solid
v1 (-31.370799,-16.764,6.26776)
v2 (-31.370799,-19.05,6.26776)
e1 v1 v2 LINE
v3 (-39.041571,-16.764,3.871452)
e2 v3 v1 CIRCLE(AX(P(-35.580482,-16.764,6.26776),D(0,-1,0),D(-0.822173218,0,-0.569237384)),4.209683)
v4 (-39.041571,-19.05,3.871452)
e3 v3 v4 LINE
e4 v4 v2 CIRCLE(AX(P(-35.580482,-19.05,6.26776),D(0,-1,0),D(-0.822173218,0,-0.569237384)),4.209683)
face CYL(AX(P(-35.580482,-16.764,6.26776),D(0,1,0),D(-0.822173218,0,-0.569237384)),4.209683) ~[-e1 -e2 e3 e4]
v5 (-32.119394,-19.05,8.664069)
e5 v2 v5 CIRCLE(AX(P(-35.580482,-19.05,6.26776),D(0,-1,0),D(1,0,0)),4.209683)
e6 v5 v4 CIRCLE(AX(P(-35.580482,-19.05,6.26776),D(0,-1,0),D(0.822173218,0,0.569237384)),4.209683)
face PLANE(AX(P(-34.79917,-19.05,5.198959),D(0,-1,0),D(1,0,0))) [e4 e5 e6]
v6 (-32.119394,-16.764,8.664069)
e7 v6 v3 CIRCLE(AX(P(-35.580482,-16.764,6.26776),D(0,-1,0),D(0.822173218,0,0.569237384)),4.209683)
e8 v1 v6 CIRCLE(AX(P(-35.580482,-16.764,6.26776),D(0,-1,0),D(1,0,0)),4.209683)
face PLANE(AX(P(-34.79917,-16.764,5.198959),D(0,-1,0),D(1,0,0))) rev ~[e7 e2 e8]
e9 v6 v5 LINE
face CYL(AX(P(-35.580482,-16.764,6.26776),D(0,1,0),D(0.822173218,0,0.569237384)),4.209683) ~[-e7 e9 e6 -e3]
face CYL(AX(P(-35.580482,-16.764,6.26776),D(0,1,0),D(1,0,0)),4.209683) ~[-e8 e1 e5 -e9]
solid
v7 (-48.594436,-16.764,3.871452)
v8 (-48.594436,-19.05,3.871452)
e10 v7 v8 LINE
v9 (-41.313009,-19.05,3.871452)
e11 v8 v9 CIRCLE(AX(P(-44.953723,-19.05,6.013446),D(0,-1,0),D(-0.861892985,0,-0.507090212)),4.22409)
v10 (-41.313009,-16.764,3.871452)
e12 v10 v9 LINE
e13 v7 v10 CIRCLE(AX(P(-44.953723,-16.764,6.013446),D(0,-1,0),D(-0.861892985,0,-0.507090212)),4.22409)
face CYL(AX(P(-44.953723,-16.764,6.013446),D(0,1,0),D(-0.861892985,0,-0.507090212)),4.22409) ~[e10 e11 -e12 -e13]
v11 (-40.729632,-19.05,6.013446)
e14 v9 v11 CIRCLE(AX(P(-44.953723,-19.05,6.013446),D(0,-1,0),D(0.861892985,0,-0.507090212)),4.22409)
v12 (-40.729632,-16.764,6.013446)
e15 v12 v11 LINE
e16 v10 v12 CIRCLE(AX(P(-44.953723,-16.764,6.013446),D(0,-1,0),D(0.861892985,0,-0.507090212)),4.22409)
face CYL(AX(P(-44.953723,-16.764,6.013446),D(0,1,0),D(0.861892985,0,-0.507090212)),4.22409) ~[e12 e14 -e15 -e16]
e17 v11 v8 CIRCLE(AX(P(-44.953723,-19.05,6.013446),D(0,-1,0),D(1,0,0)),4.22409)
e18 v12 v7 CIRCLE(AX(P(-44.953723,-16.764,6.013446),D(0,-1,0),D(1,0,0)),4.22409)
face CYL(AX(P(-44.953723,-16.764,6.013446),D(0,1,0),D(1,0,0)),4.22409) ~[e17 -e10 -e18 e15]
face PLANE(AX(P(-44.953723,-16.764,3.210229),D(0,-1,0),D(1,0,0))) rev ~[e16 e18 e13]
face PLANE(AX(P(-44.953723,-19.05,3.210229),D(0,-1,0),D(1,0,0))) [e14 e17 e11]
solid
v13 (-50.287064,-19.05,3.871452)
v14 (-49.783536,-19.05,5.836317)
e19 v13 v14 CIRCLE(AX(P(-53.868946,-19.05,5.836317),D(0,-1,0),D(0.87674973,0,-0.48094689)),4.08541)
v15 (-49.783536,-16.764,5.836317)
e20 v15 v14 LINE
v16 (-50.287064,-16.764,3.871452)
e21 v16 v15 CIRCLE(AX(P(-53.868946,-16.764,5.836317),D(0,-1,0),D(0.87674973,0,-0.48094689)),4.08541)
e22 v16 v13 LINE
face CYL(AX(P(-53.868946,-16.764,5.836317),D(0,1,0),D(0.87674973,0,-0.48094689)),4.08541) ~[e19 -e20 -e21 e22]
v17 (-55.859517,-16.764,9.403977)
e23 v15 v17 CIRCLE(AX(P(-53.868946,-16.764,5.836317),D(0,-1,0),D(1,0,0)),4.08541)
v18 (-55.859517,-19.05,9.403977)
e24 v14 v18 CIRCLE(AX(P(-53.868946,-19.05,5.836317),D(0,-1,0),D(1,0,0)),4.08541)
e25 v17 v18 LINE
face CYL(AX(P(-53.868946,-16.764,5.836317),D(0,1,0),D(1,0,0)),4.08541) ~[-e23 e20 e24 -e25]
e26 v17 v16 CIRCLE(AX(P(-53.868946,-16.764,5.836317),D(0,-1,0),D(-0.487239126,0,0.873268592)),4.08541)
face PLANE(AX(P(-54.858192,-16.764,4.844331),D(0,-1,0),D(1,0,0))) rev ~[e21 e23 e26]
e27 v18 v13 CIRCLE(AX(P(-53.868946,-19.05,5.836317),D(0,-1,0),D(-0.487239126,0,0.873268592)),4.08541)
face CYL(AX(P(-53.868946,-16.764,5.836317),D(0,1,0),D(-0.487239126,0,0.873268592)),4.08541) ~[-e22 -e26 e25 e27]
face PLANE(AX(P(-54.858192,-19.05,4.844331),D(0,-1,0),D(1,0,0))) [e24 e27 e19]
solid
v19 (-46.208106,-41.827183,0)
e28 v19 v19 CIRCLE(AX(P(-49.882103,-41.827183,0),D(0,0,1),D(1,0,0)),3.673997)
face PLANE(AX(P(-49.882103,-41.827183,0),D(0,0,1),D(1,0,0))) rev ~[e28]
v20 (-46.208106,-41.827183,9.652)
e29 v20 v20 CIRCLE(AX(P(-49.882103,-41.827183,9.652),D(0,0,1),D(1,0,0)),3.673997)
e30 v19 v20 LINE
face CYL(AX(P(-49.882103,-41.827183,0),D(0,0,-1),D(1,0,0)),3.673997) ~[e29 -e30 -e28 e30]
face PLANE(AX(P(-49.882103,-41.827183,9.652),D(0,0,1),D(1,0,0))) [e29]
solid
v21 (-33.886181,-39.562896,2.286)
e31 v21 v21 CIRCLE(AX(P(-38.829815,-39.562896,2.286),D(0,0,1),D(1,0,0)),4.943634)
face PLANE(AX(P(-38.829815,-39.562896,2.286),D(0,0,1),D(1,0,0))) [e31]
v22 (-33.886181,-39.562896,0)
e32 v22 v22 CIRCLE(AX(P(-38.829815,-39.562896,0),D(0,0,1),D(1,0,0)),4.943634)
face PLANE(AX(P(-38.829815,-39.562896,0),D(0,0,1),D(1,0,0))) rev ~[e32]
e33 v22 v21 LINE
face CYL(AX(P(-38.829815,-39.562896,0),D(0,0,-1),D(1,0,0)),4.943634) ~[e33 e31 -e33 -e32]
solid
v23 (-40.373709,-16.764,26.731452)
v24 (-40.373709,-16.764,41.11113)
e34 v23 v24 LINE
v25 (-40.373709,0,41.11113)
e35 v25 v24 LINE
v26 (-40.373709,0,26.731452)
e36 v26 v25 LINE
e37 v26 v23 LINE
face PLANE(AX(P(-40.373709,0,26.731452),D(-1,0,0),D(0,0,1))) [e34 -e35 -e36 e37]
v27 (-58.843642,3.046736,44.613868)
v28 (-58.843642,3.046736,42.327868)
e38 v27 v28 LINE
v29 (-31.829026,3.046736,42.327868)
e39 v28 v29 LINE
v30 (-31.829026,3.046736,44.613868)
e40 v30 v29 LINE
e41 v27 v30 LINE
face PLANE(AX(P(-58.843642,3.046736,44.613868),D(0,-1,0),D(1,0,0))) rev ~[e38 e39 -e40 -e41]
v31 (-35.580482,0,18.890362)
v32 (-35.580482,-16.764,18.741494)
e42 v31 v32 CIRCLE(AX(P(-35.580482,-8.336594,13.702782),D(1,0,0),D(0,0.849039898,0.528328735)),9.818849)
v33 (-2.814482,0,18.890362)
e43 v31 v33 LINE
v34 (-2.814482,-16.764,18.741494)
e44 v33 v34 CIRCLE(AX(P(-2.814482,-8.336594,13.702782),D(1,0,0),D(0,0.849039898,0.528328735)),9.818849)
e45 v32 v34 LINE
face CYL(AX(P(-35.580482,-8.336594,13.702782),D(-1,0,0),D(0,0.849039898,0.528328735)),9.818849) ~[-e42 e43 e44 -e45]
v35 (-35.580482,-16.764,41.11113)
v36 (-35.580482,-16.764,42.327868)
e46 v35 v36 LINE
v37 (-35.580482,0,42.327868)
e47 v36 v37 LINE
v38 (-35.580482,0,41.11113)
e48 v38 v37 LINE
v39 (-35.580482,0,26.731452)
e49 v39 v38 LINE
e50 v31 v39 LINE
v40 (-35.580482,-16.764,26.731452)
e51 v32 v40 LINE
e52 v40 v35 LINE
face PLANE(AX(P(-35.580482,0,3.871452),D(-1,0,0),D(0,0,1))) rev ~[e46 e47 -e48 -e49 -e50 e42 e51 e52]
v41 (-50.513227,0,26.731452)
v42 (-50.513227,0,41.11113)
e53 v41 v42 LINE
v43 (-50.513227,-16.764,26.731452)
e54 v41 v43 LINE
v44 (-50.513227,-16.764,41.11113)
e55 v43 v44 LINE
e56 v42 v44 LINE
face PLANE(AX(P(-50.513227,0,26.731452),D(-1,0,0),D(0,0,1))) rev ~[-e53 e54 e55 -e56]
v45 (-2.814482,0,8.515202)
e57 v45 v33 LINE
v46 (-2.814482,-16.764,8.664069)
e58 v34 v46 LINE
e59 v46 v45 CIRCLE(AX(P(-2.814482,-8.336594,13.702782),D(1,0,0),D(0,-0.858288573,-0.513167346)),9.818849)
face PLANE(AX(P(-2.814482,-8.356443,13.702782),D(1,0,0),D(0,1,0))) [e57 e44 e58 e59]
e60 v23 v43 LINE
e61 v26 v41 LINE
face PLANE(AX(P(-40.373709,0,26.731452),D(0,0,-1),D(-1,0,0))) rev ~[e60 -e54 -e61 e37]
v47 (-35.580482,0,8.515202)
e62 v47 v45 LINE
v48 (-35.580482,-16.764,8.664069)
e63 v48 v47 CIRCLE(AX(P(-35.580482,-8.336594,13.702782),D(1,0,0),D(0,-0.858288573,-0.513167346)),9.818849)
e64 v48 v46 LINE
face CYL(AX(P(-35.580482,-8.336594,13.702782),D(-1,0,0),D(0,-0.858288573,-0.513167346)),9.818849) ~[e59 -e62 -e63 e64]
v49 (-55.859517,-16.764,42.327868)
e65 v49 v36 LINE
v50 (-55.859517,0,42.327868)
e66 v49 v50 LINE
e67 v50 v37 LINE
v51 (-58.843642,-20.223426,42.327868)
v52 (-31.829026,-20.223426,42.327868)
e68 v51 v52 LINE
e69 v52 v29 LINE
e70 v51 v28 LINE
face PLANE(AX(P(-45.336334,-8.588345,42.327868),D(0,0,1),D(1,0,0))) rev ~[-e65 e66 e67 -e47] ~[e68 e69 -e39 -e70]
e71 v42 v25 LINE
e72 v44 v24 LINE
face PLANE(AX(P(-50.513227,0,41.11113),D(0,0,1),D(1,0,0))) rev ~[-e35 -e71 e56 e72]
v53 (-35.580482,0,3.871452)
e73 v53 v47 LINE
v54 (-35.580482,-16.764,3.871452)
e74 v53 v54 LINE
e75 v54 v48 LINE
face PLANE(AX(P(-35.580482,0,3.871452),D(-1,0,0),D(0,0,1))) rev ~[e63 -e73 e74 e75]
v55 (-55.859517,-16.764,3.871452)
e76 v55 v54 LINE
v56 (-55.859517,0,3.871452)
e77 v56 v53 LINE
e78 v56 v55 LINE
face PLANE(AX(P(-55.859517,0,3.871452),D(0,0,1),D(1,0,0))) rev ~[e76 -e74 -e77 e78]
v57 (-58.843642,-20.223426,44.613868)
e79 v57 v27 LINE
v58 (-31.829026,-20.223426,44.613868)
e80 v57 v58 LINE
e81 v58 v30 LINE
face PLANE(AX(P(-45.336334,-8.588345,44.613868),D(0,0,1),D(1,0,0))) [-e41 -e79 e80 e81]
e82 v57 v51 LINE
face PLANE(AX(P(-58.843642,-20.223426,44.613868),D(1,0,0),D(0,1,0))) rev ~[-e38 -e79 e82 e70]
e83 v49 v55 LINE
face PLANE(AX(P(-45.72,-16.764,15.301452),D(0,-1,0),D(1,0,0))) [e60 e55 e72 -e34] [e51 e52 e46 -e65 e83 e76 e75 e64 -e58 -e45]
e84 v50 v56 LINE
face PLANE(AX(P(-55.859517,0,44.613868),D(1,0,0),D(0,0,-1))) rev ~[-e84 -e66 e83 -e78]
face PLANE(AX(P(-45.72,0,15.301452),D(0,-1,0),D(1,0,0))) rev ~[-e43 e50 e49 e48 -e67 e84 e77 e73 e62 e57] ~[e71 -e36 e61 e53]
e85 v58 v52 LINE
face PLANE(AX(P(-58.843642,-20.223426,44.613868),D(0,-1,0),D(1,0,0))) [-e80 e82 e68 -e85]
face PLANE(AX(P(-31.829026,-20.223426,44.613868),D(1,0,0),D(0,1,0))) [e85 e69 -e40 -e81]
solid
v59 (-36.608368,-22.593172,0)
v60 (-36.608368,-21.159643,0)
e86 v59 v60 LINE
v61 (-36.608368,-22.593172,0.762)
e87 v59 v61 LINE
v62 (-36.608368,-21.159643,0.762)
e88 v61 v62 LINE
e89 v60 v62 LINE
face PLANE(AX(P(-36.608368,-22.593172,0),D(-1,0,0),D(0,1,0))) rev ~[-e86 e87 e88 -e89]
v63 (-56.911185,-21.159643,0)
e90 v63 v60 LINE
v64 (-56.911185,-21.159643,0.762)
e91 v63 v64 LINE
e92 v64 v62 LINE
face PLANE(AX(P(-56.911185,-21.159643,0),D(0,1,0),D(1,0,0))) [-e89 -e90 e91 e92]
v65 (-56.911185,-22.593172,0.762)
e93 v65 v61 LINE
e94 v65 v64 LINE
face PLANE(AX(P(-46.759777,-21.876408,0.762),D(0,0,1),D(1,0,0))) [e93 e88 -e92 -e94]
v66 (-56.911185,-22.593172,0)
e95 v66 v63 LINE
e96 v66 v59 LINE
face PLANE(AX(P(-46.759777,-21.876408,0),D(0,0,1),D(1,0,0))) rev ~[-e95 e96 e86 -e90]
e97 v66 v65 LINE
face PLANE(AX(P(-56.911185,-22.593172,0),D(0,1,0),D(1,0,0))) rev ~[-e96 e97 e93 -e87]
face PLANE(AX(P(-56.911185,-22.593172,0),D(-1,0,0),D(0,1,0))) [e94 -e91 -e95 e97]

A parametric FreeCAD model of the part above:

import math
import FreeCAD as App
import Part
import Sketcher
from FreeCAD import Vector
Q = App.Units.Quantity


def add_polygon(sketch, points):
    """Adds a closed chain of lines whose ends are joined by coincident constraints."""
    first, n = sketch.GeometryCount, len(points)
    for a, b in zip(points, points[1:] + points[:1]):
        sketch.addGeometry(Part.LineSegment(App.Vector(*a, 0), App.Vector(*b, 0)), False)
    for i in range(n):
        sketch.addConstraint(Sketcher.Constraint("Coincident", first + i, 2, first + (i + 1) % n, 1))

doc = App.newDocument("Part")
body = doc.addObject("PartDesign::Body", "Body")

sketch1 = body.newObject("Sketcher::SketchObject", "Sketch")
sketch1.AttachmentSupport = (doc.getObject("XZ_Plane"), [""])
sketch1.MapMode = "FlatFace"
add_polygon(sketch1, [(-55.859517, 3.871452), (-35.580482, 3.871452), (-35.580482, 26.731452), (-35.580482, 41.11113), (-35.580482, 44.613868), (-55.859517, 44.613868)])
add_polygon(sketch1, [(-40.373709, 41.11113), (-40.373709, 26.731452), (-50.513227, 26.731452), (-50.513227, 41.11113)])
sketch1.addConstraint([
    Sketcher.Constraint("Horizontal", 0),
    Sketcher.Constraint("Vertical", 1),
    Sketcher.Constraint("Vertical", 2),
    Sketcher.Constraint("Vertical", 3),
    Sketcher.Constraint("Horizontal", 4),
    Sketcher.Constraint("Vertical", 5),
    Sketcher.Constraint("Vertical", 6),
    Sketcher.Constraint("Horizontal", 7),
    Sketcher.Constraint("Vertical", 8),
    Sketcher.Constraint("Horizontal", 9),
    Sketcher.Constraint("Horizontal", 1, 2, 6, 2),
    Sketcher.Constraint("Horizontal", 2, 2, 8, 2),
    Sketcher.Constraint("DistanceY", 1, 1, 1, 2, Q("0.9 in")),
    Sketcher.Constraint("DistanceY", 2, 1, 2, 2, Q("14.379678 mm")),
    Sketcher.Constraint("DistanceX", 0, 1, 0, 2, Q("20.279035 mm")),
    Sketcher.Constraint("DistanceX", 7, 2, 7, 1, Q("10.139517 mm")),
    Sketcher.Constraint("DistanceY", 3, 1, 3, 2, Q("3.502738 mm")),
    Sketcher.Constraint("DistanceY", -1, 1, 0, 2, Q("3.871452 mm")),
    Sketcher.Constraint("DistanceX", 6, 2, -1, 1, Q("40.373709 mm")),
    Sketcher.Constraint("DistanceX", 4, 2, 6, 2, Q("15.485808 mm")),
])
pad1 = body.newObject("PartDesign::Pad", "Pad")
pad1.Profile = sketch1
pad1.Length = Q("0.66 in")

sketch2 = body.newObject("Sketcher::SketchObject", "Sketch001")
sketch2.AttachmentSupport = (doc.getObject("YZ_Plane"), [""])
sketch2.MapMode = "FlatFace"
sketch2.AttachmentOffset = App.Placement(Vector(0, 0, -35.580482), App.Rotation())
sketch2.addGeometry([
    Part.LineSegment(Vector(0, 8.515202, 0), Vector(0, 18.890362, 0)),
    Part.ArcOfCircle(Part.Circle(Vector(-8.336594, 13.702782, 0), Vector(0, 0, 1), 9.818849), math.radians(31.892604), math.radians(149.124964)),
    Part.LineSegment(Vector(-16.764, 18.741494, 0), Vector(-16.764, 8.664069, 0)),
    Part.ArcOfCircle(Part.Circle(Vector(-8.336594, 13.702782, 0), Vector(0, 0, 1), 9.818849), math.radians(-149.124964), math.radians(-31.892604)),
], False)
sketch2.addConstraint([
    Sketcher.Constraint("Coincident", 0, 2, 1, 1),
    Sketcher.Constraint("Coincident", 1, 2, 2, 1),
    Sketcher.Constraint("Coincident", 2, 2, 3, 1),
    Sketcher.Constraint("Coincident", 3, 2, 0, 1),
    Sketcher.Constraint("Vertical", 0),
    Sketcher.Constraint("Vertical", 2),
    Sketcher.Constraint("Coincident", 3, 3, 1, 3),
    Sketcher.Constraint("Equal", 1, 3),
    Sketcher.Constraint("PointOnObject", 0, 2, -2),
    Sketcher.Constraint("DistanceX", 1, 2, -1, 1, Q("0.66 in")),
    Sketcher.Constraint("Radius", 1, Q("9.818849 mm")),
    Sketcher.Constraint("DistanceY", 0, 1, 0, 2, Q("10.37516 mm")),
    Sketcher.Constraint("DistanceY", -1, 1, 3, 2, Q("8.515202 mm")),
])
pad2 = body.newObject("PartDesign::Pad", "Pad001")
pad2.Profile = sketch2
pad2.Length = Q("1.29 in")

sketch3 = body.newObject("Sketcher::SketchObject", "Sketch002")
sketch3.AttachmentSupport = (doc.getObject("XY_Plane"), [""])
sketch3.MapMode = "FlatFace"
sketch3.AttachmentOffset = App.Placement(Vector(0, 0, 44.613868), App.Rotation())
add_polygon(sketch3, [(-58.843642, 3.046736), (-58.843642, -20.223426), (-31.829026, -20.223426), (-31.829026, 3.046736)])
add_polygon(sketch3, [(-35.580482, -16.764), (-55.859517, -16.764), (-55.859517, 0), (-35.580482, 0)])
sketch3.addConstraint([
    Sketcher.Constraint("Vertical", 0),
    Sketcher.Constraint("Horizontal", 1),
    Sketcher.Constraint("Vertical", 2),
    Sketcher.Constraint("Horizontal", 3),
    Sketcher.Constraint("Horizontal", 4),
    Sketcher.Constraint("Vertical", 5),
    Sketcher.Constraint("Horizontal", 6),
    Sketcher.Constraint("Vertical", 7),
    Sketcher.Constraint("PointOnObject", 5, 2, -1),
    Sketcher.Constraint("DistanceY", 5, 1, 5, 2, Q("0.66 in")),
    Sketcher.Constraint("DistanceY", 0, 2, 0, 1, Q("23.270162 mm")),
    Sketcher.Constraint("DistanceX", 1, 1, 1, 2, Q("27.014617 mm")),
    Sketcher.Constraint("DistanceX", 4, 2, 4, 1, Q("20.279035 mm")),
    Sketcher.Constraint("DistanceX", 4, 2, 1, 2, Q("24.030492 mm")),
    Sketcher.Constraint("DistanceX", 0, 2, -1, 1, Q("58.843642 mm")),
    Sketcher.Constraint("DistanceY", 0, 2, -1, 1, Q("20.223426 mm")),
])
pad3 = body.newObject("PartDesign::Pad", "Pad002")
pad3.Profile = sketch3
pad3.Length = Q("0.09 in")
pad3.Reversed = True
body2 = doc.addObject("PartDesign::Body", "Body001")

sketch4 = body2.newObject("Sketcher::SketchObject", "Sketch003")
sketch4.AttachmentSupport = (doc.getObject("XZ_Plane001"), [""])
sketch4.MapMode = "FlatFace"
sketch4.AttachmentOffset = App.Placement(Vector(0, 0, 0.66 * 25.4), App.Rotation())
sketch4.addGeometry([
    Part.ArcOfCircle(Part.Circle(Vector(-53.868946, 5.836317, 0), Vector(0, 0, 1), 4.08541), math.radians(119.159278), math.radians(331.252737)),
    Part.ArcOfCircle(Part.Circle(Vector(-53.868946, 5.836317, 0), Vector(0, 0, 1), 4.08541), math.radians(-28.747263), math.radians(0)),
    Part.ArcOfCircle(Part.Circle(Vector(-53.868946, 5.836317, 0), Vector(0, 0, 1), 4.08541), math.radians(0), math.radians(119.159278)),
], False)
sketch4.addConstraint([
    Sketcher.Constraint("Tangent", 0, 2, 1, 1),
    Sketcher.Constraint("Tangent", 1, 2, 2, 1),
    Sketcher.Constraint("Tangent", 2, 2, 0, 1),
    Sketcher.Constraint("Horizontal", 2, 3, 1, 2),
    Sketcher.Constraint("Radius", 0, Q("4.08541 mm")),
    Sketcher.Constraint("DistanceY", -1, 1, 0, 2, Q("3.871452 mm")),
    Sketcher.Constraint("DistanceX", 2, 2, 1, 3, Q("1.990572 mm")),
    Sketcher.Constraint("DistanceX", 0, 3, -1, 1, Q("53.868946 mm")),
    Sketcher.Constraint("DistanceY", -1, 1, 0, 3, Q("5.836317 mm")),
])
pad4 = body2.newObject("PartDesign::Pad", "Pad003")
pad4.Profile = sketch4
pad4.Length = Q("0.09 in")
body3 = doc.addObject("PartDesign::Body", "Body002")

sketch5 = body3.newObject("Sketcher::SketchObject", "Sketch004")
sketch5.AttachmentSupport = (doc.getObject("XZ_Plane002"), [""])
sketch5.MapMode = "FlatFace"
sketch5.AttachmentOffset = App.Placement(Vector(0, 0, 0.66 * 25.4), App.Rotation())
sketch5.addGeometry([
    Part.ArcOfCircle(Part.Circle(Vector(-44.953723, 6.013446, 0), Vector(0, 0, 1), 4.22409), math.radians(-149.529796), math.radians(-30.470204)),
    Part.ArcOfCircle(Part.Circle(Vector(-44.953723, 6.013446, 0), Vector(0, 0, 1), 4.22409), math.radians(-30.470204), math.radians(0)),
    Part.ArcOfCircle(Part.Circle(Vector(-44.953723, 6.013446, 0), Vector(0, 0, 1), 4.22409), math.radians(0), math.radians(210.470204)),
], False)
sketch5.addConstraint([
    Sketcher.Constraint("Tangent", 0, 2, 1, 1),
    Sketcher.Constraint("Tangent", 1, 2, 2, 1),
    Sketcher.Constraint("Tangent", 2, 2, 0, 1),
    Sketcher.Constraint("Horizontal", 2, 3, 1, 2),
    Sketcher.Constraint("Horizontal", 0, 2, 2, 2),
    Sketcher.Constraint("Radius", 0, Q("4.22409 mm")),
    Sketcher.Constraint("DistanceX", 0, 2, -1, 1, Q("41.313009 mm")),
    Sketcher.Constraint("DistanceY", -1, 1, 0, 2, Q("3.871452 mm")),
    Sketcher.Constraint("DistanceX", 0, 3, -1, 1, Q("44.953723 mm")),
])
pad5 = body3.newObject("PartDesign::Pad", "Pad004")
pad5.Profile = sketch5
pad5.Length = Q("0.09 in")
body4 = doc.addObject("PartDesign::Body", "Body003")

sketch6 = body4.newObject("Sketcher::SketchObject", "Sketch005")
sketch6.AttachmentSupport = (doc.getObject("XZ_Plane003"), [""])
sketch6.MapMode = "FlatFace"
sketch6.AttachmentOffset = App.Placement(Vector(0, 0, 0.66 * 25.4), App.Rotation())
sketch6.addGeometry([
    Part.ArcOfCircle(Part.Circle(Vector(-35.580482, 6.26776, 0), Vector(0, 0, 1), 4.209683), math.radians(-145.302937), math.radians(0)),
    Part.ArcOfCircle(Part.Circle(Vector(-35.580482, 6.26776, 0), Vector(0, 0, 1), 4.209683), math.radians(0), math.radians(34.697063)),
    Part.ArcOfCircle(Part.Circle(Vector(-35.580482, 6.26776, 0), Vector(0, 0, 1), 4.209683), math.radians(34.697063), math.radians(214.697063)),
], False)
sketch6.addConstraint([
    Sketcher.Constraint("Tangent", 0, 2, 1, 1),
    Sketcher.Constraint("Tangent", 1, 2, 2, 1),
    Sketcher.Constraint("Tangent", 2, 2, 0, 1),
    Sketcher.Constraint("Horizontal", 2, 3, 0, 2),
    Sketcher.Constraint("Radius", 0, Q("4.209683 mm")),
    Sketcher.Constraint("DistanceX", 0, 2, -1, 1, Q("31.370799 mm")),
    Sketcher.Constraint("DistanceY", -1, 1, 0, 3, Q("6.26776 mm")),
    Sketcher.Constraint("DistanceY", -1, 1, 1, 2, Q("8.664069 mm")),
    Sketcher.Constraint("DistanceX", 2, 2, -1, 1, Q("39.041571 mm")),
])
pad6 = body4.newObject("PartDesign::Pad", "Pad005")
pad6.Profile = sketch6
pad6.Length = Q("0.09 in")
body5 = doc.addObject("PartDesign::Body", "Body004")

sketch7 = body5.newObject("Sketcher::SketchObject", "Sketch006")
sketch7.AttachmentSupport = (doc.getObject("XY_Plane004"), [""])
sketch7.MapMode = "FlatFace"
sketch7.addGeometry(Part.Circle(Vector(-49.882103, -41.827183, 0), Vector(0, 0, 1), 3.673997), False)
sketch7.addConstraint([
    Sketcher.Constraint("Diameter", 0, Q("7.347994 mm")),
    Sketcher.Constraint("DistanceX", 0, 3, -1, 1, Q("49.882103 mm")),
    Sketcher.Constraint("DistanceY", 0, 3, -1, 1, Q("41.827183 mm")),
])
pad7 = body5.newObject("PartDesign::Pad", "Pad006")
pad7.Profile = sketch7
pad7.Length = Q("0.38 in")
body6 = doc.addObject("PartDesign::Body", "Body005")

sketch8 = body6.newObject("Sketcher::SketchObject", "Sketch007")
sketch8.AttachmentSupport = (doc.getObject("XY_Plane005"), [""])
sketch8.MapMode = "FlatFace"
sketch8.addGeometry(Part.Circle(Vector(-38.829815, -39.562896, 0), Vector(0, 0, 1), 4.943634), False)
sketch8.addConstraint([
    Sketcher.Constraint("Diameter", 0, Q("9.887267 mm")),
    Sketcher.Constraint("DistanceX", 0, 3, -1, 1, Q("38.829815 mm")),
    Sketcher.Constraint("DistanceY", 0, 3, -1, 1, Q("39.562896 mm")),
])
pad8 = body6.newObject("PartDesign::Pad", "Pad007")
pad8.Profile = sketch8
pad8.Length = Q("0.09 in")
body7 = doc.addObject("PartDesign::Body", "Body006")

sketch9 = body7.newObject("Sketcher::SketchObject", "Sketch008")
sketch9.AttachmentSupport = (doc.getObject("XY_Plane006"), [""])
sketch9.MapMode = "FlatFace"
add_polygon(sketch9, [(-56.911185, -21.159643), (-56.911185, -22.593172), (-36.608368, -22.593172), (-36.608368, -21.159643)])
sketch9.addConstraint([
    Sketcher.Constraint("Vertical", 0),
    Sketcher.Constraint("Horizontal", 1),
    Sketcher.Constraint("Vertical", 2),
    Sketcher.Constraint("Horizontal", 3),
    Sketcher.Constraint("DistanceY", 0, 2, 0, 1, Q("1.433529 mm")),
    Sketcher.Constraint("DistanceX", 1, 1, 1, 2, Q("20.302817 mm")),
    Sketcher.Constraint("DistanceX", 1, 2, -1, 1, Q("36.608368 mm")),
    Sketcher.Constraint("DistanceY", 0, 2, -1, 1, Q("22.593172 mm")),
])
pad9 = body7.newObject("PartDesign::Pad", "Pad008")
pad9.Profile = sketch9
pad9.Length = Q("0.03 in")

doc.recompute()
